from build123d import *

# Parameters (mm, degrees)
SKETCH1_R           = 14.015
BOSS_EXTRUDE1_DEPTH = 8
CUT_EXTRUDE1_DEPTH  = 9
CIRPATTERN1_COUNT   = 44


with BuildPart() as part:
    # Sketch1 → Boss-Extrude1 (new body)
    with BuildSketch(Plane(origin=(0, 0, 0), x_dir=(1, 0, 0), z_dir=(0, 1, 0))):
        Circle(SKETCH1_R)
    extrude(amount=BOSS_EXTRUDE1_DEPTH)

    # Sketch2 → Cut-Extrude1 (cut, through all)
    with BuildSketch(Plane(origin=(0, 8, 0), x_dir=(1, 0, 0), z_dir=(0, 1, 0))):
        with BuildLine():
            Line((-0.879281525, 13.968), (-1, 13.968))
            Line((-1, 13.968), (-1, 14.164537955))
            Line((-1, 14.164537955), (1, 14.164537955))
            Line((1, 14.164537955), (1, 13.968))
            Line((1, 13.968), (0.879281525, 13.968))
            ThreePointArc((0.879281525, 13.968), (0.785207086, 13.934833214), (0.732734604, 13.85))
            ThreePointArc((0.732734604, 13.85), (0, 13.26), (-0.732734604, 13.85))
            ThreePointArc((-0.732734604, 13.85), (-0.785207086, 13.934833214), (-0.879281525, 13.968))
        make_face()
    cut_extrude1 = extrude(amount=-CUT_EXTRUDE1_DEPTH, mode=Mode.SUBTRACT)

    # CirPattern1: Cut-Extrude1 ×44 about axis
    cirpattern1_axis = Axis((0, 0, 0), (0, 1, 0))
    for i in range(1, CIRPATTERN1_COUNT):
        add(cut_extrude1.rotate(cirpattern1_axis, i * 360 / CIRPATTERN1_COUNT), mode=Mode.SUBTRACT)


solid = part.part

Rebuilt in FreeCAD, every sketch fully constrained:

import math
import FreeCAD as App
import Part
import Sketcher

doc = App.newDocument("Part")
body = doc.addObject("PartDesign::Body", "Body")

# Sketch on XZ plane
sketch1 = body.newObject("Sketcher::SketchObject", "Sketch")
sketch1.AttachmentSupport = (doc.getObject("XZ_Plane"), [""])
sketch1.MapMode = "FlatFace"
sketch1.addGeometry(Part.Circle(App.Vector(0, 0, 0), App.Vector(0, 0, 1), 14), False)
sketch1.addConstraint([
    Sketcher.Constraint("Coincident", 0, 3, -1, 1),
    Sketcher.Constraint("Diameter", 0, 28.03),
])
pad1 = body.newObject("PartDesign::Pad", "Pad")
pad1.Profile = sketch1
pad1.Length = 8
pad1.Reversed = True

# Sketch on XZ plane
sketch2 = body.newObject("Sketcher::SketchObject", "Sketch001")
sketch2.AttachmentSupport = (doc.getObject("XZ_Plane"), [""])
sketch2.MapMode = "FlatFace"
sketch2.AttachmentOffset = App.Placement(App.Vector(0, 0, -8), App.Rotation())
sketch2.addGeometry([
    Part.LineSegment(App.Vector(-1, -13.97, 0), App.Vector(-0.88, -13.97, 0)),  # 0
    Part.ArcOfCircle(Part.Circle(App.Vector(-0.88, -13.82, 0), App.Vector(0, 0, 1), 0.15), math.radians(-90), math.radians(-12)),  # 1
    Part.ArcOfCircle(Part.Circle(App.Vector(0, -14.01, 0), App.Vector(0, 0, 1), 0.75), math.radians(12), math.radians(168)),  # 2
    Part.ArcOfCircle(Part.Circle(App.Vector(0.88, -13.82, 0), App.Vector(0, 0, 1), 0.15), math.radians(-168), math.radians(-90)),  # 3
    Part.LineSegment(App.Vector(0.88, -13.97, 0), App.Vector(1, -13.97, 0)),  # 4
    Part.LineSegment(App.Vector(1, -13.97, 0), App.Vector(1, -14.16, 0)),  # 5
    Part.LineSegment(App.Vector(1, -14.16, 0), App.Vector(-1, -14.16, 0)),  # 6
    Part.LineSegment(App.Vector(-1, -14.16, 0), App.Vector(-1, -13.97, 0)),  # 7
], False)
sketch2.addConstraint([
    Sketcher.Constraint("Tangent", 0, 2, 1, 1),
    Sketcher.Constraint("Tangent", 1, 2, 2, 2),
    Sketcher.Constraint("Tangent", 2, 1, 3, 1),
    Sketcher.Constraint("Tangent", 3, 2, 4, 1),
    Sketcher.Constraint("Coincident", 4, 2, 5, 1),
    Sketcher.Constraint("Coincident", 5, 2, 6, 1),
    Sketcher.Constraint("Coincident", 6, 2, 7, 1),
    Sketcher.Constraint("Coincident", 7, 2, 0, 1),
    Sketcher.Constraint("Horizontal", 0),
    Sketcher.Constraint("Horizontal", 4),
    Sketcher.Constraint("Vertical", 5),
    Sketcher.Constraint("Horizontal", 6),
    Sketcher.Constraint("Vertical", 7),
    Sketcher.Constraint("Equal", 1, 3),
    Sketcher.Constraint("Symmetric", 1, 3, 3, 3, -2),
    Sketcher.Constraint("Equal", 0, 4),
    Sketcher.Constraint("DistanceX", 6, 2, 6, 1, 2.0),
    Sketcher.Constraint("Radius", 1, 0.15),
    Sketcher.Constraint("Radius", 2, 0.75),
    Sketcher.Constraint("DistanceY", 2, 3, -1, 1, 14.01),
    Sketcher.Constraint("DistanceY", 1, 2, -1, 1, 13.85),
    Sketcher.Constraint("DistanceY", 5, 2, 5, 1, 0.196538),
])
pocket1 = body.newObject("PartDesign::Pocket", "Pocket")
pocket1.Profile = sketch2
pocket1.Type = "ThroughAll"
pocket1.Reversed = True
doc.recompute()

polarpattern = body.newObject("PartDesign::PolarPattern", "PolarPattern")
polarpattern.Originals = [pocket1]
polarpattern.Axis = (doc.getObject("Y_Axis"), [""])
polarpattern.Angle = 360
polarpattern.Occurrences = 44
body.Tip = polarpattern

doc.recompute()
